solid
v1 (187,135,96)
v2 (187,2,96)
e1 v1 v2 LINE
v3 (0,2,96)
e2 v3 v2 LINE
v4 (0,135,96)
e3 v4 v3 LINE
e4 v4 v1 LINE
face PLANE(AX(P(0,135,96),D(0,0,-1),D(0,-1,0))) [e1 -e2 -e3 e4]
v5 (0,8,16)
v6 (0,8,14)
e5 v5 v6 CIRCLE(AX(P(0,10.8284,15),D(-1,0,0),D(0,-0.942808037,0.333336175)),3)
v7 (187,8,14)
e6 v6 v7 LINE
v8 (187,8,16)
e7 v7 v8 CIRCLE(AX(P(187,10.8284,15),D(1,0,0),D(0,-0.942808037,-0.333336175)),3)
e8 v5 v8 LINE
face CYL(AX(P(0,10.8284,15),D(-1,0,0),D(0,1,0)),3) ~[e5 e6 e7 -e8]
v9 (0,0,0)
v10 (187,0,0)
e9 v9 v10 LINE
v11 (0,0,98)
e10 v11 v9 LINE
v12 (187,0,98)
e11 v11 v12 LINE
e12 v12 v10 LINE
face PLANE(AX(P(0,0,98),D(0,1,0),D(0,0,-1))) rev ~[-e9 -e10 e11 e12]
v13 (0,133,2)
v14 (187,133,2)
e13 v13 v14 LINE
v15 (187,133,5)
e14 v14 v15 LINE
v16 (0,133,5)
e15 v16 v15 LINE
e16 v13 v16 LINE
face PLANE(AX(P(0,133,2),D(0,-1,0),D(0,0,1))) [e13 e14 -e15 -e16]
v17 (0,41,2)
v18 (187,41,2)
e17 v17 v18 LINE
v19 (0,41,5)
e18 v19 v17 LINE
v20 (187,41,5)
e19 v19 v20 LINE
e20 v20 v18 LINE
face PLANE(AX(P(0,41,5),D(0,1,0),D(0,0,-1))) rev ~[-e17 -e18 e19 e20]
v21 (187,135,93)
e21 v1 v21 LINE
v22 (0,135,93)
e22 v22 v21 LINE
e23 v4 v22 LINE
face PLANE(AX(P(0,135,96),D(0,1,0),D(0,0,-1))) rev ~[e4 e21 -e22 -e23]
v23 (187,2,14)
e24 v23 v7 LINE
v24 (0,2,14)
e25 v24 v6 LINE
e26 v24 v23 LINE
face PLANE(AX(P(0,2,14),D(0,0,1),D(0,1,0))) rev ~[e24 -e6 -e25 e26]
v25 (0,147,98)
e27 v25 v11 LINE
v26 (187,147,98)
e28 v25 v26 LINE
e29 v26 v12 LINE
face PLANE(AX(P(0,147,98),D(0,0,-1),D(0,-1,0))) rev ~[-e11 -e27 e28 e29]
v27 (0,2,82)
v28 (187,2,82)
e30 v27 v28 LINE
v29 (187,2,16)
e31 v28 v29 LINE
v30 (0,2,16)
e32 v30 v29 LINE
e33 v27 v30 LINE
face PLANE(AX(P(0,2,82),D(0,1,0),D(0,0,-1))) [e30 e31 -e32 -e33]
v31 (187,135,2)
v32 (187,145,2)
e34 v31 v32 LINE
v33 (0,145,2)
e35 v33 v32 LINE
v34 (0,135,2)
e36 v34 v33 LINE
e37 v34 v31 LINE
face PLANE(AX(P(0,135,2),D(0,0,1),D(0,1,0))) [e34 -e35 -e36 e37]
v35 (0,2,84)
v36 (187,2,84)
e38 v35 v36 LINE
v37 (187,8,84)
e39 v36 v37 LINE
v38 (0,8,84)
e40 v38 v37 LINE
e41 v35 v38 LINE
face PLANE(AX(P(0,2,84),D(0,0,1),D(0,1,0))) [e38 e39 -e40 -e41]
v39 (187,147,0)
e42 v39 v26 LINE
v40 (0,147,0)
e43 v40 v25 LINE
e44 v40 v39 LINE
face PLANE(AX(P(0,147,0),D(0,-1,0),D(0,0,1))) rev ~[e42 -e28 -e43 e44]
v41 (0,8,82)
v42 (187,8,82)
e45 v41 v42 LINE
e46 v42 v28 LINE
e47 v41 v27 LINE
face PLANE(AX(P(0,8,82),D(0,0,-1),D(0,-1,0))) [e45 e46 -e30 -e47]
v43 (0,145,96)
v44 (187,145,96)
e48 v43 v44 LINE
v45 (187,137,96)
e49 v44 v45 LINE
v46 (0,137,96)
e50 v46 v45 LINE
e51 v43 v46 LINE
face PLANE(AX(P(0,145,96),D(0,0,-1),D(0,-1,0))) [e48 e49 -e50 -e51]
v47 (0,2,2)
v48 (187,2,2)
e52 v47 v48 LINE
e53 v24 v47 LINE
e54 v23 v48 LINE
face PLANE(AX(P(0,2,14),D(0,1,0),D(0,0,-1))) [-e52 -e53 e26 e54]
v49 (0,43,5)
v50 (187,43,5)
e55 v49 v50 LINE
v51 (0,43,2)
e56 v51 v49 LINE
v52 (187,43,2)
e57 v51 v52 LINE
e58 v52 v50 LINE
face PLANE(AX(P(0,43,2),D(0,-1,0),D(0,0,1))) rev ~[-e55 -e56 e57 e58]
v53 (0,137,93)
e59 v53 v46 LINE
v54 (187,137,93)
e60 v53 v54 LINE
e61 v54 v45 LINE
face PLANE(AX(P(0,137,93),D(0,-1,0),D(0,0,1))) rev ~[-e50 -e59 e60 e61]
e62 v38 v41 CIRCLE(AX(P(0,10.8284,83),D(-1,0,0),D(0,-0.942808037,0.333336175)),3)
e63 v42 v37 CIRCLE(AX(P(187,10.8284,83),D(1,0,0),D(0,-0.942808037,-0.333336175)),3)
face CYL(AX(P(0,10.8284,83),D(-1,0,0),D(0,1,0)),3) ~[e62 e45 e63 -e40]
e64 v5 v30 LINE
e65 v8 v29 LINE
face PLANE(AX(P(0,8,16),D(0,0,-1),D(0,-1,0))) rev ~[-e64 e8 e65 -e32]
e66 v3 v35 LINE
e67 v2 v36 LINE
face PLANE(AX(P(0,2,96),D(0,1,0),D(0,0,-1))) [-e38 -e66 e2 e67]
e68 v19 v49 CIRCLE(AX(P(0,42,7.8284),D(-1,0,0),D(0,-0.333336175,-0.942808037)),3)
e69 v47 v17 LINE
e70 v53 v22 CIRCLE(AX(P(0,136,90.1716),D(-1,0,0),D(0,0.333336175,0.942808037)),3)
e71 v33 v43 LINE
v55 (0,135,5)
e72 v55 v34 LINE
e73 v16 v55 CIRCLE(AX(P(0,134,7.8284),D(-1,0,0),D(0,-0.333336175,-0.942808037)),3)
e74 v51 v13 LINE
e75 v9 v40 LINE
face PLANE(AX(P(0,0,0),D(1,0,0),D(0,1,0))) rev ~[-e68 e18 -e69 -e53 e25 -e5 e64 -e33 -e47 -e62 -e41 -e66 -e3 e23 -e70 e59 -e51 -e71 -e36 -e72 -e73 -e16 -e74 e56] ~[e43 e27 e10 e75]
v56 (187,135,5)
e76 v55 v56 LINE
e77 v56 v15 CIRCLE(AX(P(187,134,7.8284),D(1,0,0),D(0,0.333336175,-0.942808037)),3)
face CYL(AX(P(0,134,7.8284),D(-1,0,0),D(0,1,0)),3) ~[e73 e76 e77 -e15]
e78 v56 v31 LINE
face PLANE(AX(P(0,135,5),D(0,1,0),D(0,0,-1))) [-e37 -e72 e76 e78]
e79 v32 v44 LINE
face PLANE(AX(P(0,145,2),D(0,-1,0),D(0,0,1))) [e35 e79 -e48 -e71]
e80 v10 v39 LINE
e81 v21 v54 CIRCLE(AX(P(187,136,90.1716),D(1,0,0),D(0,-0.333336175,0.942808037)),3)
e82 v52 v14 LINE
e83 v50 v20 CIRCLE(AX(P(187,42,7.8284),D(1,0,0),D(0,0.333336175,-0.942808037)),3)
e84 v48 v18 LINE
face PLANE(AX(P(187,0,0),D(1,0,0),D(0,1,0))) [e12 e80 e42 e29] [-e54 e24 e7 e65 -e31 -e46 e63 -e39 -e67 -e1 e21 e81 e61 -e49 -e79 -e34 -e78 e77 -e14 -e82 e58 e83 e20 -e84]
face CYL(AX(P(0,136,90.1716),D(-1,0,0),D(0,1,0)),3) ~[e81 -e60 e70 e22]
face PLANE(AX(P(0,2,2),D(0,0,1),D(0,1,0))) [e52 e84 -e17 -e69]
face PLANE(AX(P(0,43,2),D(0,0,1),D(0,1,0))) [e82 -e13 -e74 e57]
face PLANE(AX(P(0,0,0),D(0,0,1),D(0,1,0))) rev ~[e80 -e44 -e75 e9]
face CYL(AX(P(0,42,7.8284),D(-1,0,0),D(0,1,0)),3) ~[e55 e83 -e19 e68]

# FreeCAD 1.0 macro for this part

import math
import FreeCAD as App
import Part
import Sketcher

V = App.Vector
Q = App.Units.Quantity


def add_polygon(sketch, points):
    """Adds a closed chain of lines whose ends are joined by coincident constraints."""
    first, n = sketch.GeometryCount, len(points)
    for a, b in zip(points, points[1:] + points[:1]):
        sketch.addGeometry(Part.LineSegment(App.Vector(*a, 0), App.Vector(*b, 0)), False)
    for i in range(n):
        sketch.addConstraint(Sketcher.Constraint("Coincident", first + i, 2, first + (i + 1) % n, 1))

doc = App.newDocument("Part")
body = doc.addObject("PartDesign::Body", "Body")

# Sketch on YZ plane
sketch1 = body.newObject("Sketcher::SketchObject", "Sketch")
sketch1.AttachmentSupport = (doc.getObject("YZ_Plane"), [""])
sketch1.MapMode = "FlatFace"
add_polygon(sketch1, [(0, 98), (0, 0), (147, 0), (147, 98)])  # lines 0-3
sketch1.addGeometry(Part.LineSegment(V(41, 2, 0), V(2, 2, 0)), False)  # 4
sketch1.addGeometry(Part.LineSegment(V(2, 2, 0), V(2, 14, 0)), False)  # 5
sketch1.addGeometry(Part.LineSegment(V(2, 14, 0), V(8, 14, 0)), False)  # 6
sketch1.addGeometry(Part.ArcOfCircle(Part.Circle(V(10.8284, 15, 0), V(0, 0, 1), 3), math.radians(-160.528607), math.radians(160.528607)), False)  # 7
sketch1.addGeometry(Part.LineSegment(V(8, 16, 0), V(2, 16, 0)), False)  # 8
sketch1.addGeometry(Part.LineSegment(V(2, 16, 0), V(2, 82, 0)), False)  # 9
sketch1.addGeometry(Part.LineSegment(V(2, 82, 0), V(8, 82, 0)), False)  # 10
sketch1.addGeometry(Part.ArcOfCircle(Part.Circle(V(10.8284, 83, 0), V(0, 0, 1), 3), math.radians(-160.528607), math.radians(160.528607)), False)  # 11
sketch1.addGeometry(Part.LineSegment(V(8, 84, 0), V(2, 84, 0)), False)  # 12
sketch1.addGeometry(Part.LineSegment(V(2, 84, 0), V(2, 96, 0)), False)  # 13
sketch1.addGeometry(Part.LineSegment(V(2, 96, 0), V(135, 96, 0)), False)  # 14
sketch1.addGeometry(Part.LineSegment(V(135, 96, 0), V(135, 93, 0)), False)  # 15
sketch1.addGeometry(Part.ArcOfCircle(Part.Circle(V(136, 90.1716, 0), V(0, 0, 1), 3), math.radians(109.471393), math.radians(430.528607)), False)  # 16
sketch1.addGeometry(Part.LineSegment(V(137, 93, 0), V(137, 96, 0)), False)  # 17
sketch1.addGeometry(Part.LineSegment(V(137, 96, 0), V(145, 96, 0)), False)  # 18
sketch1.addGeometry(Part.LineSegment(V(145, 96, 0), V(145, 2, 0)), False)  # 19
sketch1.addGeometry(Part.LineSegment(V(145, 2, 0), V(135, 2, 0)), False)  # 20
sketch1.addGeometry(Part.LineSegment(V(135, 2, 0), V(135, 5, 0)), False)  # 21
sketch1.addGeometry(Part.ArcOfCircle(Part.Circle(V(134, 7.8284, 0), V(0, 0, 1), 3), math.radians(-70.528607), math.radians(250.528607)), False)  # 22
sketch1.addGeometry(Part.LineSegment(V(133, 5, 0), V(133, 2, 0)), False)  # 23
sketch1.addGeometry(Part.LineSegment(V(133, 2, 0), V(43, 2, 0)), False)  # 24
sketch1.addGeometry(Part.LineSegment(V(43, 2, 0), V(43, 5, 0)), False)  # 25
sketch1.addGeometry(Part.ArcOfCircle(Part.Circle(V(42, 7.8284, 0), V(0, 0, 1), 3), math.radians(-70.528607), math.radians(250.528607)), False)  # 26
sketch1.addGeometry(Part.LineSegment(V(41, 5, 0), V(41, 2, 0)), False)  # 27
sketch1.addConstraint([
    Sketcher.Constraint("Coincident", 4, 2, 5, 1),
    Sketcher.Constraint("Coincident", 5, 2, 6, 1),
    Sketcher.Constraint("Coincident", 6, 2, 7, 1),
    Sketcher.Constraint("Coincident", 7, 2, 8, 1),
    Sketcher.Constraint("Coincident", 8, 2, 9, 1),
    Sketcher.Constraint("Coincident", 9, 2, 10, 1),
    Sketcher.Constraint("Coincident", 10, 2, 11, 1),
    Sketcher.Constraint("Coincident", 11, 2, 12, 1),
    Sketcher.Constraint("Coincident", 12, 2, 13, 1),
    Sketcher.Constraint("Coincident", 13, 2, 14, 1),
    Sketcher.Constraint("Coincident", 14, 2, 15, 1),
    Sketcher.Constraint("Coincident", 15, 2, 16, 1),
    Sketcher.Constraint("Coincident", 16, 2, 17, 1),
    Sketcher.Constraint("Coincident", 17, 2, 18, 1),
    Sketcher.Constraint("Coincident", 18, 2, 19, 1),
    Sketcher.Constraint("Coincident", 19, 2, 20, 1),
    Sketcher.Constraint("Coincident", 20, 2, 21, 1),
    Sketcher.Constraint("Coincident", 21, 2, 22, 1),
    Sketcher.Constraint("Coincident", 22, 2, 23, 1),
    Sketcher.Constraint("Coincident", 23, 2, 24, 1),
    Sketcher.Constraint("Coincident", 24, 2, 25, 1),
    Sketcher.Constraint("Coincident", 25, 2, 26, 1),
    Sketcher.Constraint("Coincident", 26, 2, 27, 1),
    Sketcher.Constraint("Coincident", 27, 2, 4, 1),
    Sketcher.Constraint("Vertical", 0),
    Sketcher.Constraint("Horizontal", 1),
    Sketcher.Constraint("Vertical", 2),
    Sketcher.Constraint("Horizontal", 3),
    Sketcher.Constraint("Horizontal", 4),
    Sketcher.Constraint("Vertical", 5),
    Sketcher.Constraint("Horizontal", 6),
    Sketcher.Constraint("Horizontal", 8),
    Sketcher.Constraint("Vertical", 9),
    Sketcher.Constraint("Horizontal", 10),
    Sketcher.Constraint("Horizontal", 12),
    Sketcher.Constraint("Vertical", 13),
    Sketcher.Constraint("Horizontal", 14),
    Sketcher.Constraint("Vertical", 15),
    Sketcher.Constraint("Vertical", 17),
    Sketcher.Constraint("Horizontal", 18),
    Sketcher.Constraint("Vertical", 19),
    Sketcher.Constraint("Horizontal", 20),
    Sketcher.Constraint("Vertical", 21),
    Sketcher.Constraint("Vertical", 23),
    Sketcher.Constraint("Horizontal", 24),
    Sketcher.Constraint("Vertical", 25),
    Sketcher.Constraint("Vertical", 27),
    Sketcher.Constraint("Coincident", 0, 2, -1, 1),
    Sketcher.Constraint("Equal", 7, 11),
    Sketcher.Constraint("Equal", 11, 16),
    Sketcher.Constraint("Equal", 16, 22),
    Sketcher.Constraint("Equal", 22, 26),
    Sketcher.Constraint("Horizontal", 22, 3, 26, 3),
    Sketcher.Constraint("Horizontal", 15, 2, 16, 2),
    Sketcher.Constraint("Horizontal", 14, 2, 17, 2),
    Sketcher.Constraint("Horizontal", 4, 2, 19, 2),
    Sketcher.Constraint("Horizontal", 21, 2, 22, 2),
    Sketcher.Constraint("Horizontal", 20, 2, 23, 2),
    Sketcher.Constraint("Horizontal", 22, 2, 25, 2),
    Sketcher.Constraint("Horizontal", 25, 2, 26, 2),
    Sketcher.Constraint("Vertical", 7, 3, 11, 3),
    Sketcher.Constraint("Vertical", 6, 2, 7, 2),
    Sketcher.Constraint("Vertical", 5, 2, 8, 2),
    Sketcher.Constraint("Vertical", 7, 2, 10, 2),
    Sketcher.Constraint("Vertical", 10, 2, 11, 2),
    Sketcher.Constraint("Vertical", 9, 2, 12, 2),
    Sketcher.Constraint("Vertical", 15, 2, 20, 2),
    Sketcher.Constraint("Equal", 5, 13),
    Sketcher.Constraint("Equal", 17, 21),
    Sketcher.Constraint("Radius", 7, Q("3 mm")),
    Sketcher.Constraint("DistanceX", 1, 1, 1, 2, Q("147 mm")),
    Sketcher.Constraint("DistanceX", 6, 1, 6, 2, Q("6 mm")),
    Sketcher.Constraint("DistanceY", 0, 2, 0, 1, Q("98 mm")),
    Sketcher.Constraint("DistanceY", 15, 2, 15, 1, Q("3 mm")),
    Sketcher.Constraint("DistanceY", -1, 1, 7, 3, Q("15 mm")),
    Sketcher.Constraint("DistanceX", -1, 1, 26, 3, Q("42 mm")),
    Sketcher.Constraint("DistanceX", -1, 1, 4, 2, Q("2 mm")),
    Sketcher.Constraint("DistanceY", -1, 1, 4, 2, Q("2 mm")),
    Sketcher.Constraint("DistanceX", 22, 3, 16, 3, Q("2 mm")),
    Sketcher.Constraint("DistanceX", 16, 3, 1, 2, Q("11 mm")),
    Sketcher.Constraint("DistanceY", 11, 3, 2, 2, Q("15 mm")),
    Sketcher.Constraint("DistanceY", 6, 2, 7, 2, Q("2 mm")),
    Sketcher.Constraint("DistanceX", 15, 2, 16, 2, Q("2 mm")),
    Sketcher.Constraint("DistanceX", 18, 2, 2, 2, Q("2 mm")),
])
pad1 = body.newObject("PartDesign::Pad", "Pad")
pad1.Profile = sketch1
pad1.Length = 187

doc.recompute()
